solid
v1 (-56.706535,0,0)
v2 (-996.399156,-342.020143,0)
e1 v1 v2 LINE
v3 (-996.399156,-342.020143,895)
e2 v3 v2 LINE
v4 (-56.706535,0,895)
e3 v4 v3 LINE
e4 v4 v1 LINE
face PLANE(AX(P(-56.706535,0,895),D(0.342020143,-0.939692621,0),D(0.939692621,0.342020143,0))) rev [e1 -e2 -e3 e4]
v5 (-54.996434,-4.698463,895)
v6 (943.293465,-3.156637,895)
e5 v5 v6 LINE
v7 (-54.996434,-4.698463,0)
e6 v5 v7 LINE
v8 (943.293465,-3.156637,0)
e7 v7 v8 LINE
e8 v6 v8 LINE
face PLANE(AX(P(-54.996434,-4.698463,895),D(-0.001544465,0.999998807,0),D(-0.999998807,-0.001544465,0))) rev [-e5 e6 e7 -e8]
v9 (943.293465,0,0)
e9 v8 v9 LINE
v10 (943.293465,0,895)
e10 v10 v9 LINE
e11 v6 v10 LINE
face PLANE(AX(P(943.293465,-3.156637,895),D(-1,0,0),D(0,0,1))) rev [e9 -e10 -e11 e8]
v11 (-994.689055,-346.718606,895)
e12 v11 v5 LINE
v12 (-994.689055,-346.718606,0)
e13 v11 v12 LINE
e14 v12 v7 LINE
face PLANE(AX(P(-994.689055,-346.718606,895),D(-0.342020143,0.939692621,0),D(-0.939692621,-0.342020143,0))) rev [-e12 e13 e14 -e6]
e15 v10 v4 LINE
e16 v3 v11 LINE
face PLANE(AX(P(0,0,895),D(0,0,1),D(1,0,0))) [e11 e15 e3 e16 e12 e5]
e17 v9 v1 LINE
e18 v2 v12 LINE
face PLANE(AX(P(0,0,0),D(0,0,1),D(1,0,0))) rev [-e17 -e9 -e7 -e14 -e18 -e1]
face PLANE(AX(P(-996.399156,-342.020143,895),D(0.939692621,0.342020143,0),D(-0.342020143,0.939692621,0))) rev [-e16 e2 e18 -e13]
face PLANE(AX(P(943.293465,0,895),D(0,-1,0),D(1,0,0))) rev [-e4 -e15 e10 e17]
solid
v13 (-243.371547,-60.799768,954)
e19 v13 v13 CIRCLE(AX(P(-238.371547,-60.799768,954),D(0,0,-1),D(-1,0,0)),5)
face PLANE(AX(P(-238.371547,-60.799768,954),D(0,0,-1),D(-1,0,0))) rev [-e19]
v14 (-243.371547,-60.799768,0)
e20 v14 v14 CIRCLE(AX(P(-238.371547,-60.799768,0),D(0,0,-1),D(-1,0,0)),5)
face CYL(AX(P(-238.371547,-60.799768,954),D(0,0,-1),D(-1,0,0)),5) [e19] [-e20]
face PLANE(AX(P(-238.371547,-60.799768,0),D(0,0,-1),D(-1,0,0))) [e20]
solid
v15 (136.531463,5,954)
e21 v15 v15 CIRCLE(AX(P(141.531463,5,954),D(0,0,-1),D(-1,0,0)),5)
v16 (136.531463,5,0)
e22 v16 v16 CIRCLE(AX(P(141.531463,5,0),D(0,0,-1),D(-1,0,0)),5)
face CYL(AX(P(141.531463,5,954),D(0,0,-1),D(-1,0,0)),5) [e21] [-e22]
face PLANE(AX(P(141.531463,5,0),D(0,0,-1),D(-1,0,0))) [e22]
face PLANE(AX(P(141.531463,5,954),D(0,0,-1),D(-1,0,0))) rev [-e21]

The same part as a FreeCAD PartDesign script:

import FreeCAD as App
import Part
import Sketcher

V = App.Vector
Q = App.Units.Quantity


def add_polygon(sketch, points):
    """Adds a closed chain of lines whose ends are joined by coincident constraints."""
    first, n = sketch.GeometryCount, len(points)
    for a, b in zip(points, points[1:] + points[:1]):
        sketch.addGeometry(Part.LineSegment(App.Vector(*a, 0), App.Vector(*b, 0)), False)
    for i in range(n):
        sketch.addConstraint(Sketcher.Constraint("Coincident", first + i, 2, first + (i + 1) % n, 1))

doc = App.newDocument("Part")
body = doc.addObject("PartDesign::Body", "Body")

# Sketch on XY plane
sketch1 = body.newObject("Sketcher::SketchObject", "Sketch")
sketch1.AttachmentSupport = (doc.getObject("XY_Plane"), [""])
sketch1.MapMode = "FlatFace"
add_polygon(sketch1, [(943.3, 0), (-56.7, 0), (-996.4, -342), (-994.7, -346.7), (-55, -4.7), (943.3, -3.2)])  # lines 0-5
sketch1.addConstraint([
    Sketcher.Constraint("Horizontal", 0),
    Sketcher.Constraint("Vertical", 5),
    Sketcher.Constraint("PointOnObject", 0, 2, -1),
    Sketcher.Constraint("Perpendicular", 1, 2),
    Sketcher.Constraint("Perpendicular", 2, 3),
    Sketcher.Constraint("Equal", 1, 3),
    Sketcher.Constraint("DistanceX", 0, 2, 0, 1, Q("1000 mm")),
    Sketcher.Constraint("Angle", 1, Q("-160 deg")),
    Sketcher.Constraint("Distance", 1, Q("1000 mm")),
    Sketcher.Constraint("Distance", 2, Q("5 mm")),
    Sketcher.Constraint("DistanceY", 5, 1, 5, 2, Q("3.156637 mm")),
    Sketcher.Constraint("DistanceX", 0, 2, -1, 1, Q("56.706535 mm")),
])
pad1 = body.newObject("PartDesign::Pad", "Pad")
pad1.Profile = sketch1
pad1.Length = 895
body2 = doc.addObject("PartDesign::Body", "Body001")

# Sketch on XY plane
sketch2 = body2.newObject("Sketcher::SketchObject", "Sketch001")
sketch2.AttachmentSupport = (doc.getObject("XY_Plane001"), [""])
sketch2.MapMode = "FlatFace"
sketch2.addGeometry(Part.Circle(V(142, 5, 0), V(0, 0, 1), 5), False)
sketch2.addConstraint([
    Sketcher.Constraint("Diameter", 0, Q("10 mm")),
    Sketcher.Constraint("DistanceY", -1, 1, 0, 3, Q("5 mm")),
    Sketcher.Constraint("DistanceX", -1, 1, 0, 3, Q("141.531463 mm")),
])
pad2 = body2.newObject("PartDesign::Pad", "Pad001")
pad2.Profile = sketch2
pad2.Length = 954
body3 = doc.addObject("PartDesign::Body", "Body002")

# Sketch on XY plane
sketch3 = body3.newObject("Sketcher::SketchObject", "Sketch002")
sketch3.AttachmentSupport = (doc.getObject("XY_Plane002"), [""])
sketch3.MapMode = "FlatFace"
sketch3.addGeometry(Part.Circle(V(-238, -61, 0), V(0, 0, 1), 5), False)
sketch3.addConstraint([
    Sketcher.Constraint("Diameter", 0, Q("10 mm")),
    Sketcher.Constraint("DistanceY", 0, 3, -1, 1, Q("60.799768 mm")),
    Sketcher.Constraint("DistanceX", 0, 3, -1, 1, Q("238.371547 mm")),
])
pad3 = body3.newObject("PartDesign::Pad", "Pad002")
pad3.Profile = sketch3
pad3.Length = 954

doc.recompute()
